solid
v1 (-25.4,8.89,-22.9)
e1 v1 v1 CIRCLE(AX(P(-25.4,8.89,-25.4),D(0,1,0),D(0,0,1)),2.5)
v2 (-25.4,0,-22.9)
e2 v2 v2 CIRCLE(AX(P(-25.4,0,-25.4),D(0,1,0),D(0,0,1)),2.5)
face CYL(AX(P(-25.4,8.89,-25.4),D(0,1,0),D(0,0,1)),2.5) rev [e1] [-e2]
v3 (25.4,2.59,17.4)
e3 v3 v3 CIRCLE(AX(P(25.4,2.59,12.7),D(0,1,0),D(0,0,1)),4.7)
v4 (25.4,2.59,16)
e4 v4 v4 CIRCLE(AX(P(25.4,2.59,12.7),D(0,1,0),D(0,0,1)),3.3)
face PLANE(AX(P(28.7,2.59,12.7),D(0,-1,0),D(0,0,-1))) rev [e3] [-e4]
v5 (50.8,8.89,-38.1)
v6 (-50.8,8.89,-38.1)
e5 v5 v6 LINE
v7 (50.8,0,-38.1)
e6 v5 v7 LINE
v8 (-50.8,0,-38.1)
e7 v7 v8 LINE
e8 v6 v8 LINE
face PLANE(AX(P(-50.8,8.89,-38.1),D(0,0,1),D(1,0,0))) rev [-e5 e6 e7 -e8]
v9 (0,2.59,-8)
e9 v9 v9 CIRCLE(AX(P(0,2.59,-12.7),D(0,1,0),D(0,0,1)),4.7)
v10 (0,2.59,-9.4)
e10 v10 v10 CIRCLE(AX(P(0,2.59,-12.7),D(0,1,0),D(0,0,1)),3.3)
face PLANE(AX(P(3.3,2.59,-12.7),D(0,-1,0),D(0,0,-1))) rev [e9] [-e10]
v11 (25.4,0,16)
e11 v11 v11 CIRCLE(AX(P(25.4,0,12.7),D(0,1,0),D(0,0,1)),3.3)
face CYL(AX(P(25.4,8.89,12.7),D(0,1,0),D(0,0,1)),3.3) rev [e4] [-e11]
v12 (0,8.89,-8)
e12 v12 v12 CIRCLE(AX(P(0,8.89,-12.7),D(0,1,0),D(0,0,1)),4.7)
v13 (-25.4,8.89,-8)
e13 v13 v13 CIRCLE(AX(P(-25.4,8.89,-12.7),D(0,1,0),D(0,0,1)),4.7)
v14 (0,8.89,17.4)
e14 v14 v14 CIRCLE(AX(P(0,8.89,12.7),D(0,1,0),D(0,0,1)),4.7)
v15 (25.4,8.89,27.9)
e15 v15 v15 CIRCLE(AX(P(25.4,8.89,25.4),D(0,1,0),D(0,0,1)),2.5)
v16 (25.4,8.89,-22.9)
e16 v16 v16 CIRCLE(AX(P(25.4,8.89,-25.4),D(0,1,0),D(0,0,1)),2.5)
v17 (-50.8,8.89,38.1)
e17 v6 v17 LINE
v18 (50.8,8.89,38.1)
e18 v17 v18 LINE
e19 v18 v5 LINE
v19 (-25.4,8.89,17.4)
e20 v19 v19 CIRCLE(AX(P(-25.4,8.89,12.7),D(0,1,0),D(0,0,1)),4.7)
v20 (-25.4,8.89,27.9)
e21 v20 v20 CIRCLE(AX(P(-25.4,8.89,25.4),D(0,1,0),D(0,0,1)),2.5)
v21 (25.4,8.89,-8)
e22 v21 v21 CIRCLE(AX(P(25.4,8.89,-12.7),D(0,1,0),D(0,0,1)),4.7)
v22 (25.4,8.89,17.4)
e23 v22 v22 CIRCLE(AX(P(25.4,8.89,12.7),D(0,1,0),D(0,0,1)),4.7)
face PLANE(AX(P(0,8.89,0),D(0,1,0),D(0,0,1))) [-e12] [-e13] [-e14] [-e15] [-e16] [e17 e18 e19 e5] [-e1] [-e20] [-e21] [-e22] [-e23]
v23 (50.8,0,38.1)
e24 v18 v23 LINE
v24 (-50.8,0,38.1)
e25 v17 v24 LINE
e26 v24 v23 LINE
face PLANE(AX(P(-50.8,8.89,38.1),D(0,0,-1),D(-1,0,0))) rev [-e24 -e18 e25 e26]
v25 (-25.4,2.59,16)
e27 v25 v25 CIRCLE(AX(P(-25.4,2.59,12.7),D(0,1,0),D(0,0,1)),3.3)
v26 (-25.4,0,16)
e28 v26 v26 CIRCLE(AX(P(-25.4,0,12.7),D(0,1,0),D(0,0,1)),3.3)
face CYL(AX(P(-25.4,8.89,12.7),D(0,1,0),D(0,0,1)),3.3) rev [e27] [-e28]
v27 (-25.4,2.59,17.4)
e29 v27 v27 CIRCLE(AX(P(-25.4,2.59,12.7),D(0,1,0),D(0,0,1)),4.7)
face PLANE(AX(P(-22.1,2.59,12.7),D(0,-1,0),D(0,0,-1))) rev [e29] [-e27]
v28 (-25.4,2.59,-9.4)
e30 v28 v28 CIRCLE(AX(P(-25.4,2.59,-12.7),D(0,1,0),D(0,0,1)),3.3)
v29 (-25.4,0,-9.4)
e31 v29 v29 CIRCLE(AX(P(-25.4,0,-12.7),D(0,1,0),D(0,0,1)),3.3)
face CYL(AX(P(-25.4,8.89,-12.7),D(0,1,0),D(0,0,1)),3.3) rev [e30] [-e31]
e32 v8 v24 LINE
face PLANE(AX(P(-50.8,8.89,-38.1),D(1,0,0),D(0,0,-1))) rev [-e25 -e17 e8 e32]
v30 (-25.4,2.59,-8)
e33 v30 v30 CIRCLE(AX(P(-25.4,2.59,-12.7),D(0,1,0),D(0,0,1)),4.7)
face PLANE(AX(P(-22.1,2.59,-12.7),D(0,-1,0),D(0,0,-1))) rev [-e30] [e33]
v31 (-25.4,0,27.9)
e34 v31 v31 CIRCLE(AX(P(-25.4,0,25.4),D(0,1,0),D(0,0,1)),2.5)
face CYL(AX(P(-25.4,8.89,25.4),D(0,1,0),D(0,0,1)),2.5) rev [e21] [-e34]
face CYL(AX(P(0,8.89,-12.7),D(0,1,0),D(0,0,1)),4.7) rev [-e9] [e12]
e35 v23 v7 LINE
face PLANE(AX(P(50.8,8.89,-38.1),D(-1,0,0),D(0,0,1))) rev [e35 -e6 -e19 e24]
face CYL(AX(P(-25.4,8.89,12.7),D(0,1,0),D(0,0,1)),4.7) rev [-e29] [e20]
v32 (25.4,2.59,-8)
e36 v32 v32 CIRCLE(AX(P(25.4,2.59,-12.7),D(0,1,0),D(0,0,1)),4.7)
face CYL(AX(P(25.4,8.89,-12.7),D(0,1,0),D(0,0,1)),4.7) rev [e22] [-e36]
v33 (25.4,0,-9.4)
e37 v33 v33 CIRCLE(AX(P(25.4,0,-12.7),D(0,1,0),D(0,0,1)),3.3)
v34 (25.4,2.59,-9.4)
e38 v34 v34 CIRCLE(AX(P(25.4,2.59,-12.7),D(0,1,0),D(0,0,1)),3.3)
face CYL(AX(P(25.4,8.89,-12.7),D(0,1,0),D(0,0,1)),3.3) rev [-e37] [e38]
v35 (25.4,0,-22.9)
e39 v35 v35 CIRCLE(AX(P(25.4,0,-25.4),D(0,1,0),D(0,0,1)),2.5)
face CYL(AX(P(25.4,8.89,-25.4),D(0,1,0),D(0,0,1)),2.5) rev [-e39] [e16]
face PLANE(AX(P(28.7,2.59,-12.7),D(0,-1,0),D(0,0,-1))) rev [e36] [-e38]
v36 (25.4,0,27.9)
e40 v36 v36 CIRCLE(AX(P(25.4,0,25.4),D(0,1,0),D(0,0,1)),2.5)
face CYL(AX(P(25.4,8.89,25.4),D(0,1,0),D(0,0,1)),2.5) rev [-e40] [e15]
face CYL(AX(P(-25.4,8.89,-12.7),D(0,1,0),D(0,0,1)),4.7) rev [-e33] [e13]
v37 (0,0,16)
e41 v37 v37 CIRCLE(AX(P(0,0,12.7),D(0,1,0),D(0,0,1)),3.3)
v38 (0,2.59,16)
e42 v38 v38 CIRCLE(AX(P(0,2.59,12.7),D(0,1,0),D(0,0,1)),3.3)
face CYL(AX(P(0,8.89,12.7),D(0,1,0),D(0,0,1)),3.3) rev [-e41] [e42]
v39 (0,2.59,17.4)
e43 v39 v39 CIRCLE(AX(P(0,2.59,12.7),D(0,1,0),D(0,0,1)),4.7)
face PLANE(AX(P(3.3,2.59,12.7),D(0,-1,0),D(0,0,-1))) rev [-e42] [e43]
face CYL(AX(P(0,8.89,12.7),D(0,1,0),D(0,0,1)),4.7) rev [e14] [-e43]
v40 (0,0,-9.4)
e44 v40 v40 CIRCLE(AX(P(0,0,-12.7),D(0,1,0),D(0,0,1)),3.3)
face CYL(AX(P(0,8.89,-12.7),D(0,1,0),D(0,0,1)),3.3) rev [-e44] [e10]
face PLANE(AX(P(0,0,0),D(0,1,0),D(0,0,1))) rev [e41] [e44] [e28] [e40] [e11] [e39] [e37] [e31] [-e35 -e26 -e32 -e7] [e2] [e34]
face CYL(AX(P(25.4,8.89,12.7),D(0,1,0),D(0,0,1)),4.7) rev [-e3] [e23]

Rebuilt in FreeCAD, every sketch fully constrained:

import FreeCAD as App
import Part
import Sketcher
Q = App.Units.Quantity


def add_polygon(sketch, points):
    """Adds a closed chain of lines whose ends are joined by coincident constraints."""
    first, n = sketch.GeometryCount, len(points)
    for a, b in zip(points, points[1:] + points[:1]):
        sketch.addGeometry(Part.LineSegment(App.Vector(*a, 0), App.Vector(*b, 0)), False)
    for i in range(n):
        sketch.addConstraint(Sketcher.Constraint("Coincident", first + i, 2, first + (i + 1) % n, 1))

doc = App.newDocument("Part")
body = doc.addObject("PartDesign::Body", "Body")

# Sketch on XZ plane
sketch1 = body.newObject("Sketcher::SketchObject", "Sketch")
sketch1.AttachmentSupport = (doc.getObject("XZ_Plane"), [""])
sketch1.MapMode = "FlatFace"
add_polygon(sketch1, [(-51, -38), (-51, 38), (51, 38), (51, -38)])  # lines 0-3
sketch1.addConstraint([
    Sketcher.Constraint("Vertical", 0),
    Sketcher.Constraint("Horizontal", 1),
    Sketcher.Constraint("Vertical", 2),
    Sketcher.Constraint("Horizontal", 3),
    Sketcher.Constraint("Symmetric", 0, 2, 2, 2, -1, 1),
    Sketcher.Constraint("DistanceX", 1, 1, 1, 2, Q("4 in")),
    Sketcher.Constraint("DistanceY", 0, 1, 0, 2, Q("3 in")),
])
pad1 = body.newObject("PartDesign::Pad", "Pad")
pad1.Profile = sketch1
pad1.Length = Q("0.35 in")
pad1.Reversed = True

# Sketch on XZ plane
sketch2 = body.newObject("Sketcher::SketchObject", "Sketch001")
sketch2.AttachmentSupport = (doc.getObject("XZ_Plane"), [""])
sketch2.MapMode = "FlatFace"
sketch2.AttachmentOffset = App.Placement(App.Vector(0, 0, -0.35 * 25.4), App.Rotation())
sketch2.addGeometry([
    Part.Circle(App.Vector(-25.4, -25.4, 0), App.Vector(0, 0, 1), 2.5),
    Part.Circle(App.Vector(25.4, -25.4, 0), App.Vector(0, 0, 1), 2.5),
    Part.Circle(App.Vector(25.4, 25.4, 0), App.Vector(0, 0, 1), 2.5),
    Part.Circle(App.Vector(-25.4, 25.4, 0), App.Vector(0, 0, 1), 2.5),
], False)
sketch2.addConstraint([
    Sketcher.Constraint("Equal", 0, 1),
    Sketcher.Constraint("Equal", 1, 2),
    Sketcher.Constraint("Equal", 2, 3),
    Sketcher.Constraint("Symmetric", 0, 3, 2, 3, -1, 1),
    Sketcher.Constraint("Symmetric", 1, 3, 3, 3, -1, 1),
    Sketcher.Constraint("Symmetric", 0, 3, 1, 3, -2),
    Sketcher.Constraint("DistanceX", 0, 3, -1, 1, Q("1 in")),
    Sketcher.Constraint("DistanceY", 0, 3, -1, 1, Q("1 in")),
    Sketcher.Constraint("Diameter", 0, 5.0),
])
doc.recompute()
hole = body.newObject("PartDesign::Hole", "Hole")
hole.Profile = sketch2
hole.ThreadType = "None"
hole.Diameter = 5
hole.DepthType = "ThroughAll"
hole.Reversed = True

# Sketch on XZ plane
sketch3 = body.newObject("Sketcher::SketchObject", "Sketch002")
sketch3.AttachmentSupport = (doc.getObject("XZ_Plane"), [""])
sketch3.MapMode = "FlatFace"
sketch3.AttachmentOffset = App.Placement(App.Vector(0, 0, -0.35 * 25.4), App.Rotation())
sketch3.addGeometry([
    Part.Circle(App.Vector(-25.4, -12.7, 0), App.Vector(0, 0, 1), 3.3),  # 0
    Part.Circle(App.Vector(-25.4, 12.7, 0), App.Vector(0, 0, 1), 3.3),  # 1
    Part.Circle(App.Vector(0, 12.7, 0), App.Vector(0, 0, 1), 3.3),  # 2
    Part.Circle(App.Vector(0, -12.7, 0), App.Vector(0, 0, 1), 3.3),  # 3
    Part.Circle(App.Vector(25.4, -12.7, 0), App.Vector(0, 0, 1), 3.3),  # 4
    Part.Circle(App.Vector(25.4, 12.7, 0), App.Vector(0, 0, 1), 3.3),  # 5
], False)
sketch3.addConstraint([
    Sketcher.Constraint("Equal", 0, 1),
    Sketcher.Constraint("Equal", 1, 2),
    Sketcher.Constraint("Equal", 2, 3),
    Sketcher.Constraint("Equal", 3, 4),
    Sketcher.Constraint("Equal", 4, 5),
    Sketcher.Constraint("Symmetric", 2, 3, 3, 3, -1, 1),
    Sketcher.Constraint("Symmetric", 1, 3, 4, 3, -1, 1),
    Sketcher.Constraint("Symmetric", 0, 3, 5, 3, -1, 1),
    Sketcher.Constraint("Symmetric", 0, 3, 4, 3, -2),
    Sketcher.Constraint("PointOnObject", 2, 3, -2),
    Sketcher.Constraint("Horizontal", 1, 3, 2, 3),
    Sketcher.Constraint("DistanceX", 0, 3, -1, 1, Q("1 in")),
    Sketcher.Constraint("DistanceY", 0, 3, 1, 3, Q("1 in")),
    Sketcher.Constraint("Diameter", 0, 6.6),
])
doc.recompute()
hole2 = body.newObject("PartDesign::Hole", "Hole001")
hole2.Profile = sketch3
hole2.ThreadType = "None"
hole2.Diameter = 6.6
hole2.DepthType = "ThroughAll"
hole2.HoleCutType = "Counterbore"
hole2.HoleCutDiameter = 9.4
hole2.HoleCutDepth = 6.3
hole2.Reversed = True

doc.recompute()
